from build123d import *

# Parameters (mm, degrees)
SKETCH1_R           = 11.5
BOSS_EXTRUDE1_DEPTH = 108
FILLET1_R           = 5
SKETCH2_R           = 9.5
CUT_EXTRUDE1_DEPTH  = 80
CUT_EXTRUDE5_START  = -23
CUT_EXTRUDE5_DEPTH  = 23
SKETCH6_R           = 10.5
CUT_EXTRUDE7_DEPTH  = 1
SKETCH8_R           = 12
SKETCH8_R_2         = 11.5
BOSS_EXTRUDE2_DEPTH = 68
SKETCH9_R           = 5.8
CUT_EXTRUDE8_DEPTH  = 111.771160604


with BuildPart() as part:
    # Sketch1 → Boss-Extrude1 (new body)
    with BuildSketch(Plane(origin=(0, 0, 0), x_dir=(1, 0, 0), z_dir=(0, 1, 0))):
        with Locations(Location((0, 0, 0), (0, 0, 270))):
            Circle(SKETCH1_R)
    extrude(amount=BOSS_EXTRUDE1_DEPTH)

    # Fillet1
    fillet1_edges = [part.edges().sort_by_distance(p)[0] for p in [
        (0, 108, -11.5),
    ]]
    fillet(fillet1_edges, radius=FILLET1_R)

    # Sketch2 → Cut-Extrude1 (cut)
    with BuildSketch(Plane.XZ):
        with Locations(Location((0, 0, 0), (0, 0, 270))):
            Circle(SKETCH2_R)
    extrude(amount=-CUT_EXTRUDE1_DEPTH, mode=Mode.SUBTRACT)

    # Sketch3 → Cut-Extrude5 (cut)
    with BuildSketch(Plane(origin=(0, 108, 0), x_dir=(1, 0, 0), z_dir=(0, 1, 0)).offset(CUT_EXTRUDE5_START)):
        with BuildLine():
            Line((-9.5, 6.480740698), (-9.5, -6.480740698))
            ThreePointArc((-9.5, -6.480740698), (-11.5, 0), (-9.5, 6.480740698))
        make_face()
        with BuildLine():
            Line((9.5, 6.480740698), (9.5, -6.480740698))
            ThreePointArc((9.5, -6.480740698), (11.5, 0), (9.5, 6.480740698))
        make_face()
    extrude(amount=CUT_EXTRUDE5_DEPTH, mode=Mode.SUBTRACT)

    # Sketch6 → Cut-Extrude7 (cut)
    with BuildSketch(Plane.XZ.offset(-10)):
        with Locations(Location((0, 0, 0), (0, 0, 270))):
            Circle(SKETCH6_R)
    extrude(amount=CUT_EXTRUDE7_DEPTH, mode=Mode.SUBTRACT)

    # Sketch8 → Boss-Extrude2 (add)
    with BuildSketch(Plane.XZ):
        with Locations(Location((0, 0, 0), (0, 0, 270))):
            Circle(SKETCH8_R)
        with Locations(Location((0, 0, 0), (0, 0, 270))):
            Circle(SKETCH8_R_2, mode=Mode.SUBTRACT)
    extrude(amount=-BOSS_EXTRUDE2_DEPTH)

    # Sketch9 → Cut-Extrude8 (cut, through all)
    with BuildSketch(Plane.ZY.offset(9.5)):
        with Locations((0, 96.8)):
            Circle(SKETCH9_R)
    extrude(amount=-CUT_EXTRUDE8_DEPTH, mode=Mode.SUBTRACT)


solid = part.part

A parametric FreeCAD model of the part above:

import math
import FreeCAD as App
import Part
import Sketcher
from FreeCAD import Vector


def edges_at(feature, points):
    """Names of the edges that pass closest to the given points."""
    edges = feature.Shape.Edges
    near = lambda p: min(range(len(edges)), key=lambda i: edges[i].distToShape(Part.Vertex(*p))[0])
    return sorted({f"Edge{near(p) + 1}" for p in points})

doc = App.newDocument("Part")
body = doc.addObject("PartDesign::Body", "Body")

sketch1 = doc.addObject("Sketcher::SketchObject", "Sketch")
body.addObject(sketch1)
sketch1.AttachmentSupport = (doc.XZ_Plane, [""])
sketch1.MapMode = "FlatFace"
sketch1.addGeometry(Part.Circle(Vector(0, 0, 0), Vector(0, 0, 1), 12), False)
sketch1.addConstraint([
    Sketcher.Constraint("Coincident", 0, 3, -1, 1),
    Sketcher.Constraint("Diameter", 0, 23.0),
])
pad1 = doc.addObject("PartDesign::Pad", "Pad")
body.addObject(pad1)
pad1.Profile = sketch1
pad1.Length = 108
pad1.Reversed = True
doc.recompute()

fillet = doc.addObject("PartDesign::Fillet", "Fillet")
body.addObject(fillet)
fillet.Base = (pad1, edges_at(pad1, [(0, 108, -11.5)]))
fillet.Radius = 5

sketch2 = doc.addObject("Sketcher::SketchObject", "Sketch001")
body.addObject(sketch2)
sketch2.AttachmentSupport = (doc.XZ_Plane, [""])
sketch2.MapMode = "FlatFace"
sketch2.addGeometry(Part.Circle(Vector(0, 0, 0), Vector(0, 0, 1), 10), False)
sketch2.addConstraint([
    Sketcher.Constraint("Coincident", 0, 3, -1, 1),
    Sketcher.Constraint("Diameter", 0, 19.0),
])
pocket1 = doc.addObject("PartDesign::Pocket", "Pocket")
body.addObject(pocket1)
pocket1.Profile = sketch2
pocket1.Length = 80

sketch3 = doc.addObject("Sketcher::SketchObject", "Sketch002")
body.addObject(sketch3)
sketch3.AttachmentSupport = (doc.XZ_Plane, [""])
sketch3.MapMode = "FlatFace"
sketch3.AttachmentOffset = App.Placement(Vector(0, 0, -85), App.Rotation())
sketch3.addGeometry([
    Part.LineSegment(Vector(-10, 6, 0), Vector(-10, -6, 0)),
    Part.ArcOfCircle(Part.Circle(Vector(0, 0, 0), Vector(0, 0, 1), 11), math.radians(146), math.radians(214)),
    Part.LineSegment(Vector(10, -6, 0), Vector(10, 6, 0)),
    Part.ArcOfCircle(Part.Circle(Vector(0, 0, 0), Vector(0, 0, 1), 11), math.radians(-34), math.radians(34)),
], False)
sketch3.addConstraint([
    Sketcher.Constraint("Coincident", 0, 1, 1, 1),
    Sketcher.Constraint("Coincident", 1, 2, 0, 2),
    Sketcher.Constraint("Coincident", 2, 1, 3, 1),
    Sketcher.Constraint("Coincident", 3, 2, 2, 2),
    Sketcher.Constraint("Vertical", 0),
    Sketcher.Constraint("Vertical", 2),
    Sketcher.Constraint("Coincident", 1, 3, -1, 1),
    Sketcher.Constraint("Coincident", 3, 3, -1, 1),
    Sketcher.Constraint("Equal", 1, 3),
    Sketcher.Constraint("Horizontal", 1, 2, 2, 1),
    Sketcher.Constraint("Radius", 1, 11.5),
    Sketcher.Constraint("DistanceX", 1, 2, 2, 1, 19.0),
])
pocket2 = doc.addObject("PartDesign::Pocket", "Pocket001")
body.addObject(pocket2)
pocket2.Profile = sketch3
pocket2.Length = 23

sketch4 = doc.addObject("Sketcher::SketchObject", "Sketch003")
body.addObject(sketch4)
sketch4.AttachmentSupport = (doc.XZ_Plane, [""])
sketch4.MapMode = "FlatFace"
sketch4.AttachmentOffset = App.Placement(Vector(0, 0, -10), App.Rotation())
sketch4.addGeometry(Part.Circle(Vector(0, 0, 0), Vector(0, 0, 1), 10), False)
sketch4.addConstraint([
    Sketcher.Constraint("Coincident", 0, 3, -1, 1),
    Sketcher.Constraint("Diameter", 0, 21.0),
])
pocket3 = doc.addObject("PartDesign::Pocket", "Pocket002")
body.addObject(pocket3)
pocket3.Profile = sketch4
pocket3.Length = 1
pocket3.Reversed = True

sketch5 = doc.addObject("Sketcher::SketchObject", "Sketch004")
body.addObject(sketch5)
sketch5.AttachmentSupport = (doc.XZ_Plane, [""])
sketch5.MapMode = "FlatFace"
sketch5.addGeometry([
    Part.Circle(Vector(0, 0, 0), Vector(0, 0, 1), 12),
    Part.Circle(Vector(0, 0, 0), Vector(0, 0, 1), 12),
], False)
sketch5.addConstraint([
    Sketcher.Constraint("Coincident", 0, 3, -1, 1),
    Sketcher.Constraint("Coincident", 1, 3, -1, 1),
    Sketcher.Constraint("Diameter", 0, 24.0),
    Sketcher.Constraint("Diameter", 1, 23.0),
])
pad2 = doc.addObject("PartDesign::Pad", "Pad001")
body.addObject(pad2)
pad2.Profile = sketch5
pad2.Length = 68
pad2.Reversed = True

sketch6 = doc.addObject("Sketcher::SketchObject", "Sketch005")
body.addObject(sketch6)
sketch6.AttachmentSupport = (doc.YZ_Plane, [""])
sketch6.MapMode = "FlatFace"
sketch6.AttachmentOffset = App.Placement(Vector(0, 0, -9.5), App.Rotation())
sketch6.addGeometry(Part.Circle(Vector(97, 0, 0), Vector(0, 0, 1), 6), False)
sketch6.addConstraint([
    Sketcher.Constraint("PointOnObject", 0, 3, -1),
    Sketcher.Constraint("Diameter", 0, 11.6),
    Sketcher.Constraint("DistanceX", -1, 1, 0, 3, 96.8),
])
pocket4 = doc.addObject("PartDesign::Pocket", "Pocket003")
body.addObject(pocket4)
pocket4.Profile = sketch6
pocket4.Type = "ThroughAll"
pocket4.Reversed = True

doc.recompute()
